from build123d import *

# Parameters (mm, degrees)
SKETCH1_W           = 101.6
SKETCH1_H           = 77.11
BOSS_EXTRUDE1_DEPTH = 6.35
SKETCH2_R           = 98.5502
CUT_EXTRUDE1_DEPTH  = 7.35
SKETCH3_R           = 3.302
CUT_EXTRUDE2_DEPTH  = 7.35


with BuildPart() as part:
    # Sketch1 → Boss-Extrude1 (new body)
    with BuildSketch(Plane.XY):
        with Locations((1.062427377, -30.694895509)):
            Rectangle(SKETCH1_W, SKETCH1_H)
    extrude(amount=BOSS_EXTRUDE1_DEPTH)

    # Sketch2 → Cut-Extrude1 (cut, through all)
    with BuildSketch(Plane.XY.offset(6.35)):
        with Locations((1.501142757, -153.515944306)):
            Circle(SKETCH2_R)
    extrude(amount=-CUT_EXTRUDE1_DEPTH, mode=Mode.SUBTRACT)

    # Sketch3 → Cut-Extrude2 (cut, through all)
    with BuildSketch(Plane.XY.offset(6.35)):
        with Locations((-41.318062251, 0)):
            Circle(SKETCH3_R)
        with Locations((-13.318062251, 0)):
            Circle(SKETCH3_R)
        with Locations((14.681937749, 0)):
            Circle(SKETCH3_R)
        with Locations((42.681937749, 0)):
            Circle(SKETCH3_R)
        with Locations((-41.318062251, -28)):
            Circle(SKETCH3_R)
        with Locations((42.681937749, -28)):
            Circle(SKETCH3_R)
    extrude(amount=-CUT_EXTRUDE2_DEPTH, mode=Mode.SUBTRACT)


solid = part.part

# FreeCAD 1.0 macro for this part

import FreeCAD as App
import Part
import Sketcher
Q = App.Units.Quantity

doc = App.newDocument("Part")
params = doc.addObject("Spreadsheet::Sheet", "Params")
for row, (alias, value) in enumerate([
    ("sketch1_width", "4 in"),
    ("pad1_length", "0.25 in"),
    ("sketch3_diameter", "0.26 in"),
], start=1):
    params.set(f"A{row}", alias)
    params.set(f"B{row}", "=" + value)
    params.setAlias(f"B{row}", alias)

body = doc.addObject("PartDesign::Body", "Body")

sketch1 = body.newObject("Sketcher::SketchObject", "Sketch")
sketch1.AttachmentSupport = (doc.getObject("XY_Plane"), [""])
sketch1.MapMode = "FlatFace"
sketch1.addGeometry(Part.LineSegment(App.Vector(-49.737573, 7.860104, 0), App.Vector(-49.737573, -69.249896, 0)), False)
sketch1.addGeometry(Part.LineSegment(App.Vector(-49.737573, -69.249896, 0), App.Vector(51.862427, -69.249896, 0)), False)
sketch1.addGeometry(Part.LineSegment(App.Vector(51.862427, -69.249896, 0), App.Vector(51.862427, 7.860104, 0)), False)
sketch1.addGeometry(Part.LineSegment(App.Vector(51.862427, 7.860104, 0), App.Vector(-49.737573, 7.860104, 0)), False)
sketch1.addConstraint(Sketcher.Constraint("Coincident", 0, 2, 1, 1))
sketch1.addConstraint(Sketcher.Constraint("Coincident", 1, 2, 2, 1))
sketch1.addConstraint(Sketcher.Constraint("Coincident", 2, 2, 3, 1))
sketch1.addConstraint(Sketcher.Constraint("Coincident", 3, 2, 0, 1))
sketch1.addConstraint(Sketcher.Constraint("Vertical", 0))
sketch1.addConstraint(Sketcher.Constraint("Horizontal", 1))
sketch1.addConstraint(Sketcher.Constraint("Vertical", 2))
sketch1.addConstraint(Sketcher.Constraint("Horizontal", 3))
sketch1.addConstraint(Sketcher.Constraint("DistanceX", 1, 1, 1, 2, Q("4 in")))
sketch1.addConstraint(Sketcher.Constraint("DistanceY", 0, 2, 0, 1, Q("77.11 mm")))
sketch1.addConstraint(Sketcher.Constraint("DistanceX", 0, 2, -1, 1, Q("49.737573 mm")))
sketch1.addConstraint(Sketcher.Constraint("DistanceY", 0, 2, -1, 1, Q("69.249896 mm")))
sketch1.setExpression("Constraints[8]", "Params.sketch1_width")
pad1 = body.newObject("PartDesign::Pad", "Pad")
pad1.Profile = sketch1
pad1.setExpression("Length", "Params.pad1_length")

sketch2 = body.newObject("Sketcher::SketchObject", "Sketch001")
sketch2.AttachmentSupport = (doc.getObject("XY_Plane"), [""])
sketch2.MapMode = "FlatFace"
sketch2.AttachmentOffset = App.Placement(App.Vector(0, 0, 0.25 * 25.4), App.Rotation())
sketch2.addGeometry(Part.Circle(App.Vector(1.501143, -153.515944, 0), App.Vector(0, 0, 1), 98.5502), False)
sketch2.addConstraint(Sketcher.Constraint("Diameter", 0, Q("197.1004 mm")))
sketch2.addConstraint(Sketcher.Constraint("DistanceX", -1, 1, 0, 3, Q("0.0591001 in")))
sketch2.addConstraint(Sketcher.Constraint("DistanceY", 0, 3, -1, 1, Q("153.515944 mm")))
pocket1 = body.newObject("PartDesign::Pocket", "Pocket")
pocket1.Profile = sketch2
pocket1.Type = "ThroughAll"

sketch3 = body.newObject("Sketcher::SketchObject", "Sketch002")
sketch3.AttachmentSupport = (doc.getObject("XY_Plane"), [""])
sketch3.MapMode = "FlatFace"
sketch3.AttachmentOffset = App.Placement(App.Vector(0, 0, 0.25 * 25.4), App.Rotation())
sketch3.addGeometry(Part.Circle(App.Vector(-41.318062, 0, 0), App.Vector(0, 0, 1), 3.302), False)
sketch3.addGeometry(Part.Circle(App.Vector(-13.318062, 0, 0), App.Vector(0, 0, 1), 3.302), False)
sketch3.addGeometry(Part.Circle(App.Vector(14.681938, 0, 0), App.Vector(0, 0, 1), 3.302), False)
sketch3.addGeometry(Part.Circle(App.Vector(42.681938, 0, 0), App.Vector(0, 0, 1), 3.302), False)
sketch3.addGeometry(Part.Circle(App.Vector(-41.318062, -28, 0), App.Vector(0, 0, 1), 3.302), False)
sketch3.addGeometry(Part.Circle(App.Vector(42.681938, -28, 0), App.Vector(0, 0, 1), 3.302), False)
sketch3.addConstraint(Sketcher.Constraint("Equal", 0, 1))
sketch3.addConstraint(Sketcher.Constraint("Equal", 1, 2))
sketch3.addConstraint(Sketcher.Constraint("Equal", 2, 3))
sketch3.addConstraint(Sketcher.Constraint("Equal", 3, 4))
sketch3.addConstraint(Sketcher.Constraint("Equal", 4, 5))
sketch3.addConstraint(Sketcher.Constraint("PointOnObject", 0, 3, -1))
sketch3.addConstraint(Sketcher.Constraint("PointOnObject", 1, 3, -1))
sketch3.addConstraint(Sketcher.Constraint("PointOnObject", 2, 3, -1))
sketch3.addConstraint(Sketcher.Constraint("PointOnObject", 3, 3, -1))
sketch3.addConstraint(Sketcher.Constraint("Horizontal", 4, 3, 5, 3))
sketch3.addConstraint(Sketcher.Constraint("Vertical", 0, 3, 4, 3))
sketch3.addConstraint(Sketcher.Constraint("Vertical", 3, 3, 5, 3))
sketch3.addConstraint(Sketcher.Constraint("Diameter", 0, Q("0.26 in")))
sketch3.addConstraint(Sketcher.Constraint("DistanceY", 4, 3, -1, 1, Q("28 mm")))
sketch3.addConstraint(Sketcher.Constraint("DistanceX", 0, 3, 1, 3, Q("28 mm")))
sketch3.addConstraint(Sketcher.Constraint("DistanceX", 1, 3, 2, 3, Q("28 mm")))
sketch3.addConstraint(Sketcher.Constraint("DistanceX", 2, 3, 3, 3, Q("28 mm")))
sketch3.addConstraint(Sketcher.Constraint("DistanceX", 0, 3, -1, 1, Q("41.318062 mm")))
sketch3.setExpression("Constraints[12]", "Params.sketch3_diameter")
pocket2 = body.newObject("PartDesign::Pocket", "Pocket001")
pocket2.Profile = sketch3
pocket2.Type = "ThroughAll"

doc.recompute()
